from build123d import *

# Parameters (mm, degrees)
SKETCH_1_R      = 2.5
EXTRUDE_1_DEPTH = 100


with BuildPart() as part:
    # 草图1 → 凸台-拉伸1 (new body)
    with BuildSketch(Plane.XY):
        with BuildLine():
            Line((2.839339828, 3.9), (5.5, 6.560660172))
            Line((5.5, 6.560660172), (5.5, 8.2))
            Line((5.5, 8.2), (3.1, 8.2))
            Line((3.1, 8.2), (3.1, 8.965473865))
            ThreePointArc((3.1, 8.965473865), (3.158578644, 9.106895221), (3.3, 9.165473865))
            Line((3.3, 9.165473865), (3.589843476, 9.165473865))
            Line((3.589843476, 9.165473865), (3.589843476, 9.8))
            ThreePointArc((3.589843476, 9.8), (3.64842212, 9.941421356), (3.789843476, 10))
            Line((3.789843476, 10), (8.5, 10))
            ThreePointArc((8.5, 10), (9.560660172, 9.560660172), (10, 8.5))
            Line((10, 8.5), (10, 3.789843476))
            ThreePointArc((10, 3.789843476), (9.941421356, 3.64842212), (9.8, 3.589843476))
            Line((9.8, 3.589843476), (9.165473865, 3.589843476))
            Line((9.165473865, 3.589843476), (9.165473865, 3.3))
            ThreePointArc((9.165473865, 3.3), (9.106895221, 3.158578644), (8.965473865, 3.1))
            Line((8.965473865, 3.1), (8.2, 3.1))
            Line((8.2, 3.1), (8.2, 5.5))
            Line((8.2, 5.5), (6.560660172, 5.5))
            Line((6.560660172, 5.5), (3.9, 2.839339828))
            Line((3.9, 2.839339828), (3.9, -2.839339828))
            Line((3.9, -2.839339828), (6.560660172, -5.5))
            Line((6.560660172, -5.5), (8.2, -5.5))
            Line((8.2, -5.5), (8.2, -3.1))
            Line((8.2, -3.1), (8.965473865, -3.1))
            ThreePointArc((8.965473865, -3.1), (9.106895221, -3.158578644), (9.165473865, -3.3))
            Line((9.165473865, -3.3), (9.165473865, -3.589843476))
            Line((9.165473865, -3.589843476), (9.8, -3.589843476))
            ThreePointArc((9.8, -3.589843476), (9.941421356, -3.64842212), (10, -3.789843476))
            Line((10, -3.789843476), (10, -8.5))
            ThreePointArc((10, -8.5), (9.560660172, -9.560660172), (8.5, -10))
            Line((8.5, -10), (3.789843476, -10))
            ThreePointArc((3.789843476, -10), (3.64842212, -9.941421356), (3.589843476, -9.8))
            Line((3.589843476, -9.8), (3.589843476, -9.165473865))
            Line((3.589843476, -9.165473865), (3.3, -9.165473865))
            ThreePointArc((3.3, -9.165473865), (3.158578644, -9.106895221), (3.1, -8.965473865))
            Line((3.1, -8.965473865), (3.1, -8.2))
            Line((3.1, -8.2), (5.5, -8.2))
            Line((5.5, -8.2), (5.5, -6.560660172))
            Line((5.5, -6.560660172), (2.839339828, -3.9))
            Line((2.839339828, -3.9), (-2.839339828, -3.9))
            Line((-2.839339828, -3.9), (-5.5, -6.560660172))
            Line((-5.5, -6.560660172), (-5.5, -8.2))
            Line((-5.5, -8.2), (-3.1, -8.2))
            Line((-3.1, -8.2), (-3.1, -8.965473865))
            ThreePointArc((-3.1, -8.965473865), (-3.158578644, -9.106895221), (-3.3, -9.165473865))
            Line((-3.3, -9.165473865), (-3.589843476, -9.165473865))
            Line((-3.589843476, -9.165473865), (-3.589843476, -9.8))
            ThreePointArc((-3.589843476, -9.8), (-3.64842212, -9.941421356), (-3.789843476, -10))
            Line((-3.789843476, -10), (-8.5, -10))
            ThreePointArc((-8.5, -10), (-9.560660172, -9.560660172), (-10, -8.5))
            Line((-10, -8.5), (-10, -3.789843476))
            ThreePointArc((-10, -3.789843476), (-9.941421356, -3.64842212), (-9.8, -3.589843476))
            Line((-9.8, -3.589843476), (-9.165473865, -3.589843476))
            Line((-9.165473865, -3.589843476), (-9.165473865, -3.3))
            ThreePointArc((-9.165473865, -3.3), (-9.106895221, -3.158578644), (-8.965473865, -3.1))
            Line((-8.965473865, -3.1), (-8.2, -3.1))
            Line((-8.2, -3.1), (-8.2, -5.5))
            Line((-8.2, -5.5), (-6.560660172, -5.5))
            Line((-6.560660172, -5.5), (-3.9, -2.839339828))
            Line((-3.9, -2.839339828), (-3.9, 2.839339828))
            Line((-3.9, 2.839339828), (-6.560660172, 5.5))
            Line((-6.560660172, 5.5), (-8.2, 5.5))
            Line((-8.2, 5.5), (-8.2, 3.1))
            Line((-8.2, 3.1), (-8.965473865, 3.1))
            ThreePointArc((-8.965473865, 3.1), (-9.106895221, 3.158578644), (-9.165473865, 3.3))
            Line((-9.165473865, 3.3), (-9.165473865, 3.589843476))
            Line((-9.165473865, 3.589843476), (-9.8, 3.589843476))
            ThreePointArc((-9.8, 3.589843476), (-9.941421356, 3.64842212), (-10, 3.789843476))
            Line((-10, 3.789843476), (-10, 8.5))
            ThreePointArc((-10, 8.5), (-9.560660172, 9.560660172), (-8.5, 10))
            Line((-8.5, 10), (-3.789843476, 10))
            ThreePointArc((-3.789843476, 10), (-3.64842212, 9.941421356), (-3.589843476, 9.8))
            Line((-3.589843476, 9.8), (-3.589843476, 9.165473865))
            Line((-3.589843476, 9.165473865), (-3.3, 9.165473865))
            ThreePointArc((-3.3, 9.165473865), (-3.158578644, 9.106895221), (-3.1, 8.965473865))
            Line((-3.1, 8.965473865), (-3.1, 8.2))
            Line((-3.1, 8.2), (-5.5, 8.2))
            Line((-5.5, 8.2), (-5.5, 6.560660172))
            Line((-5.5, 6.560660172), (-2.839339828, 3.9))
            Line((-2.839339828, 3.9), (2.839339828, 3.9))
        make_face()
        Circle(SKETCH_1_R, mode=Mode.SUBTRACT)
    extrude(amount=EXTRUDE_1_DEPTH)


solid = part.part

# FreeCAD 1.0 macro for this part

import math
import FreeCAD as App
import Part
import Sketcher

V = App.Vector

doc = App.newDocument("Part")
body = doc.addObject("PartDesign::Body", "Body")

# Sketch on XY plane
sketch1 = body.newObject("Sketcher::SketchObject", "Sketch")
sketch1.AttachmentSupport = (doc.getObject("XY_Plane"), [""])
sketch1.MapMode = "FlatFace"
sketch1.addGeometry(Part.LineSegment(V(5.5, 6.56, 0), V(2.84, 3.9, 0)), False)
sketch1.addGeometry(Part.LineSegment(V(2.84, 3.9, 0), V(-2.84, 3.9, 0)), False)
sketch1.addGeometry(Part.LineSegment(V(-2.84, 3.9, 0), V(-5.5, 6.56, 0)), False)
sketch1.addGeometry(Part.LineSegment(V(-5.5, 6.56, 0), V(-5.5, 8.2, 0)), False)
sketch1.addGeometry(Part.LineSegment(V(-5.5, 8.2, 0), V(-3.1, 8.2, 0)), False)
sketch1.addGeometry(Part.LineSegment(V(-3.1, 8.2, 0), V(-3.1, 8.97, 0)), False)
sketch1.addGeometry(Part.ArcOfCircle(Part.Circle(V(-3.3, 8.97, 0), V(0, 0, 1), 0.2), math.radians(0), math.radians(90)), False)
sketch1.addGeometry(Part.LineSegment(V(-3.3, 9.17, 0), V(-3.59, 9.17, 0)), False)
sketch1.addGeometry(Part.LineSegment(V(-3.59, 9.17, 0), V(-3.59, 9.8, 0)), False)
sketch1.addGeometry(Part.ArcOfCircle(Part.Circle(V(-3.79, 9.8, 0), V(0, 0, 1), 0.2), math.radians(0), math.radians(90)), False)
sketch1.addGeometry(Part.LineSegment(V(-3.79, 10, 0), V(-8.5, 10, 0)), False)
sketch1.addGeometry(Part.ArcOfCircle(Part.Circle(V(-8.5, 8.5, 0), V(0, 0, 1), 1.5), math.radians(90), math.radians(180)), False)
sketch1.addGeometry(Part.LineSegment(V(-10, 8.5, 0), V(-10, 3.79, 0)), False)
sketch1.addGeometry(Part.ArcOfCircle(Part.Circle(V(-9.8, 3.79, 0), V(0, 0, 1), 0.2), math.radians(-180), math.radians(-90)), False)
sketch1.addGeometry(Part.LineSegment(V(-9.8, 3.59, 0), V(-9.17, 3.59, 0)), False)
sketch1.addGeometry(Part.LineSegment(V(-9.17, 3.59, 0), V(-9.17, 3.3, 0)), False)
sketch1.addGeometry(Part.ArcOfCircle(Part.Circle(V(-8.97, 3.3, 0), V(0, 0, 1), 0.2), math.radians(-180), math.radians(-90)), False)
sketch1.addGeometry(Part.LineSegment(V(-8.97, 3.1, 0), V(-8.2, 3.1, 0)), False)
sketch1.addGeometry(Part.LineSegment(V(-8.2, 3.1, 0), V(-8.2, 5.5, 0)), False)
sketch1.addGeometry(Part.LineSegment(V(-8.2, 5.5, 0), V(-6.56, 5.5, 0)), False)
sketch1.addGeometry(Part.LineSegment(V(-6.56, 5.5, 0), V(-3.9, 2.84, 0)), False)
sketch1.addGeometry(Part.LineSegment(V(-3.9, 2.84, 0), V(-3.9, -2.84, 0)), False)
sketch1.addGeometry(Part.LineSegment(V(-3.9, -2.84, 0), V(-6.56, -5.5, 0)), False)
sketch1.addGeometry(Part.LineSegment(V(-6.56, -5.5, 0), V(-8.2, -5.5, 0)), False)
sketch1.addGeometry(Part.LineSegment(V(-8.2, -5.5, 0), V(-8.2, -3.1, 0)), False)
sketch1.addGeometry(Part.LineSegment(V(-8.2, -3.1, 0), V(-8.97, -3.1, 0)), False)
sketch1.addGeometry(Part.ArcOfCircle(Part.Circle(V(-8.97, -3.3, 0), V(0, 0, 1), 0.2), math.radians(90), math.radians(180)), False)
sketch1.addGeometry(Part.LineSegment(V(-9.17, -3.3, 0), V(-9.17, -3.59, 0)), False)
sketch1.addGeometry(Part.LineSegment(V(-9.17, -3.59, 0), V(-9.8, -3.59, 0)), False)
sketch1.addGeometry(Part.ArcOfCircle(Part.Circle(V(-9.8, -3.79, 0), V(0, 0, 1), 0.2), math.radians(90), math.radians(180)), False)
sketch1.addGeometry(Part.LineSegment(V(-10, -3.79, 0), V(-10, -8.5, 0)), False)
sketch1.addGeometry(Part.ArcOfCircle(Part.Circle(V(-8.5, -8.5, 0), V(0, 0, 1), 1.5), math.radians(180), math.radians(270)), False)
sketch1.addGeometry(Part.LineSegment(V(-8.5, -10, 0), V(-3.79, -10, 0)), False)
sketch1.addGeometry(Part.ArcOfCircle(Part.Circle(V(-3.79, -9.8, 0), V(0, 0, 1), 0.2), math.radians(-90), math.radians(0)), False)
sketch1.addGeometry(Part.LineSegment(V(-3.59, -9.8, 0), V(-3.59, -9.17, 0)), False)
sketch1.addGeometry(Part.LineSegment(V(-3.59, -9.17, 0), V(-3.3, -9.17, 0)), False)
sketch1.addGeometry(Part.ArcOfCircle(Part.Circle(V(-3.3, -8.97, 0), V(0, 0, 1), 0.2), math.radians(-90), math.radians(0)), False)
sketch1.addGeometry(Part.LineSegment(V(-3.1, -8.97, 0), V(-3.1, -8.2, 0)), False)
sketch1.addGeometry(Part.LineSegment(V(-3.1, -8.2, 0), V(-5.5, -8.2, 0)), False)
sketch1.addGeometry(Part.LineSegment(V(-5.5, -8.2, 0), V(-5.5, -6.56, 0)), False)
sketch1.addGeometry(Part.LineSegment(V(-5.5, -6.56, 0), V(-2.84, -3.9, 0)), False)
sketch1.addGeometry(Part.LineSegment(V(-2.84, -3.9, 0), V(2.84, -3.9, 0)), False)
sketch1.addGeometry(Part.LineSegment(V(2.84, -3.9, 0), V(5.5, -6.56, 0)), False)
sketch1.addGeometry(Part.LineSegment(V(5.5, -6.56, 0), V(5.5, -8.2, 0)), False)
sketch1.addGeometry(Part.LineSegment(V(5.5, -8.2, 0), V(3.1, -8.2, 0)), False)
sketch1.addGeometry(Part.LineSegment(V(3.1, -8.2, 0), V(3.1, -8.97, 0)), False)
sketch1.addGeometry(Part.ArcOfCircle(Part.Circle(V(3.3, -8.97, 0), V(0, 0, 1), 0.2), math.radians(-180), math.radians(-90)), False)
sketch1.addGeometry(Part.LineSegment(V(3.3, -9.17, 0), V(3.59, -9.17, 0)), False)
sketch1.addGeometry(Part.LineSegment(V(3.59, -9.17, 0), V(3.59, -9.8, 0)), False)
sketch1.addGeometry(Part.ArcOfCircle(Part.Circle(V(3.79, -9.8, 0), V(0, 0, 1), 0.2), math.radians(-180), math.radians(-90)), False)
sketch1.addGeometry(Part.LineSegment(V(3.79, -10, 0), V(8.5, -10, 0)), False)
sketch1.addGeometry(Part.ArcOfCircle(Part.Circle(V(8.5, -8.5, 0), V(0, 0, 1), 1.5), math.radians(-90), math.radians(0)), False)
sketch1.addGeometry(Part.LineSegment(V(10, -8.5, 0), V(10, -3.79, 0)), False)
sketch1.addGeometry(Part.ArcOfCircle(Part.Circle(V(9.8, -3.79, 0), V(0, 0, 1), 0.2), math.radians(0), math.radians(90)), False)
sketch1.addGeometry(Part.LineSegment(V(9.8, -3.59, 0), V(9.17, -3.59, 0)), False)
sketch1.addGeometry(Part.LineSegment(V(9.17, -3.59, 0), V(9.17, -3.3, 0)), False)
sketch1.addGeometry(Part.ArcOfCircle(Part.Circle(V(8.97, -3.3, 0), V(0, 0, 1), 0.2), math.radians(0), math.radians(90)), False)
sketch1.addGeometry(Part.LineSegment(V(8.97, -3.1, 0), V(8.2, -3.1, 0)), False)
sketch1.addGeometry(Part.LineSegment(V(8.2, -3.1, 0), V(8.2, -5.5, 0)), False)
sketch1.addGeometry(Part.LineSegment(V(8.2, -5.5, 0), V(6.56, -5.5, 0)), False)
sketch1.addGeometry(Part.LineSegment(V(6.56, -5.5, 0), V(3.9, -2.84, 0)), False)
sketch1.addGeometry(Part.LineSegment(V(3.9, -2.84, 0), V(3.9, 2.84, 0)), False)
sketch1.addGeometry(Part.LineSegment(V(3.9, 2.84, 0), V(6.56, 5.5, 0)), False)
sketch1.addGeometry(Part.LineSegment(V(6.56, 5.5, 0), V(8.2, 5.5, 0)), False)
sketch1.addGeometry(Part.LineSegment(V(8.2, 5.5, 0), V(8.2, 3.1, 0)), False)
sketch1.addGeometry(Part.LineSegment(V(8.2, 3.1, 0), V(8.97, 3.1, 0)), False)
sketch1.addGeometry(Part.ArcOfCircle(Part.Circle(V(8.97, 3.3, 0), V(0, 0, 1), 0.2), math.radians(-90), math.radians(0)), False)
sketch1.addGeometry(Part.LineSegment(V(9.17, 3.3, 0), V(9.17, 3.59, 0)), False)
sketch1.addGeometry(Part.LineSegment(V(9.17, 3.59, 0), V(9.8, 3.59, 0)), False)
sketch1.addGeometry(Part.ArcOfCircle(Part.Circle(V(9.8, 3.79, 0), V(0, 0, 1), 0.2), math.radians(-90), math.radians(0)), False)
sketch1.addGeometry(Part.LineSegment(V(10, 3.79, 0), V(10, 8.5, 0)), False)
sketch1.addGeometry(Part.ArcOfCircle(Part.Circle(V(8.5, 8.5, 0), V(0, 0, 1), 1.5), math.radians(0), math.radians(90)), False)
sketch1.addGeometry(Part.LineSegment(V(8.5, 10, 0), V(3.79, 10, 0)), False)
sketch1.addGeometry(Part.ArcOfCircle(Part.Circle(V(3.79, 9.8, 0), V(0, 0, 1), 0.2), math.radians(90), math.radians(180)), False)
sketch1.addGeometry(Part.LineSegment(V(3.59, 9.8, 0), V(3.59, 9.17, 0)), False)
sketch1.addGeometry(Part.LineSegment(V(3.59, 9.17, 0), V(3.3, 9.17, 0)), False)
sketch1.addGeometry(Part.ArcOfCircle(Part.Circle(V(3.3, 8.97, 0), V(0, 0, 1), 0.2), math.radians(90), math.radians(180)), False)
sketch1.addGeometry(Part.LineSegment(V(3.1, 8.97, 0), V(3.1, 8.2, 0)), False)
sketch1.addGeometry(Part.LineSegment(V(3.1, 8.2, 0), V(5.5, 8.2, 0)), False)
sketch1.addGeometry(Part.LineSegment(V(5.5, 8.2, 0), V(5.5, 6.56, 0)), False)
sketch1.addGeometry(Part.Circle(V(0, 0, 0), V(0, 0, 1), 2.5), False)
sketch1.addConstraint(Sketcher.Constraint("Coincident", 0, 2, 1, 1))
sketch1.addConstraint(Sketcher.Constraint("Coincident", 1, 2, 2, 1))
sketch1.addConstraint(Sketcher.Constraint("Coincident", 2, 2, 3, 1))
sketch1.addConstraint(Sketcher.Constraint("Coincident", 3, 2, 4, 1))
sketch1.addConstraint(Sketcher.Constraint("Coincident", 4, 2, 5, 1))
sketch1.addConstraint(Sketcher.Constraint("Tangent", 5, 2, 6, 1))
sketch1.addConstraint(Sketcher.Constraint("Tangent", 6, 2, 7, 1))
sketch1.addConstraint(Sketcher.Constraint("Coincident", 7, 2, 8, 1))
sketch1.addConstraint(Sketcher.Constraint("Tangent", 8, 2, 9, 1))
sketch1.addConstraint(Sketcher.Constraint("Tangent", 9, 2, 10, 1))
sketch1.addConstraint(Sketcher.Constraint("Tangent", 10, 2, 11, 1))
sketch1.addConstraint(Sketcher.Constraint("Tangent", 11, 2, 12, 1))
sketch1.addConstraint(Sketcher.Constraint("Tangent", 12, 2, 13, 1))
sketch1.addConstraint(Sketcher.Constraint("Tangent", 13, 2, 14, 1))
sketch1.addConstraint(Sketcher.Constraint("Coincident", 14, 2, 15, 1))
sketch1.addConstraint(Sketcher.Constraint("Tangent", 15, 2, 16, 1))
sketch1.addConstraint(Sketcher.Constraint("Tangent", 16, 2, 17, 1))
sketch1.addConstraint(Sketcher.Constraint("Coincident", 17, 2, 18, 1))
sketch1.addConstraint(Sketcher.Constraint("Coincident", 18, 2, 19, 1))
sketch1.addConstraint(Sketcher.Constraint("Coincident", 19, 2, 20, 1))
sketch1.addConstraint(Sketcher.Constraint("Coincident", 20, 2, 21, 1))
sketch1.addConstraint(Sketcher.Constraint("Coincident", 21, 2, 22, 1))
sketch1.addConstraint(Sketcher.Constraint("Coincident", 22, 2, 23, 1))
sketch1.addConstraint(Sketcher.Constraint("Coincident", 23, 2, 24, 1))
sketch1.addConstraint(Sketcher.Constraint("Coincident", 24, 2, 25, 1))
sketch1.addConstraint(Sketcher.Constraint("Tangent", 25, 2, 26, 1))
sketch1.addConstraint(Sketcher.Constraint("Tangent", 26, 2, 27, 1))
sketch1.addConstraint(Sketcher.Constraint("Coincident", 27, 2, 28, 1))
sketch1.addConstraint(Sketcher.Constraint("Tangent", 28, 2, 29, 1))
sketch1.addConstraint(Sketcher.Constraint("Tangent", 29, 2, 30, 1))
sketch1.addConstraint(Sketcher.Constraint("Tangent", 30, 2, 31, 1))
sketch1.addConstraint(Sketcher.Constraint("Tangent", 31, 2, 32, 1))
sketch1.addConstraint(Sketcher.Constraint("Tangent", 32, 2, 33, 1))
sketch1.addConstraint(Sketcher.Constraint("Tangent", 33, 2, 34, 1))
sketch1.addConstraint(Sketcher.Constraint("Coincident", 34, 2, 35, 1))
sketch1.addConstraint(Sketcher.Constraint("Tangent", 35, 2, 36, 1))
sketch1.addConstraint(Sketcher.Constraint("Tangent", 36, 2, 37, 1))
sketch1.addConstraint(Sketcher.Constraint("Coincident", 37, 2, 38, 1))
sketch1.addConstraint(Sketcher.Constraint("Coincident", 38, 2, 39, 1))
sketch1.addConstraint(Sketcher.Constraint("Coincident", 39, 2, 40, 1))
sketch1.addConstraint(Sketcher.Constraint("Coincident", 40, 2, 41, 1))
sketch1.addConstraint(Sketcher.Constraint("Coincident", 41, 2, 42, 1))
sketch1.addConstraint(Sketcher.Constraint("Coincident", 42, 2, 43, 1))
sketch1.addConstraint(Sketcher.Constraint("Coincident", 43, 2, 44, 1))
sketch1.addConstraint(Sketcher.Constraint("Coincident", 44, 2, 45, 1))
sketch1.addConstraint(Sketcher.Constraint("Tangent", 45, 2, 46, 1))
sketch1.addConstraint(Sketcher.Constraint("Tangent", 46, 2, 47, 1))
sketch1.addConstraint(Sketcher.Constraint("Coincident", 47, 2, 48, 1))
sketch1.addConstraint(Sketcher.Constraint("Tangent", 48, 2, 49, 1))
sketch1.addConstraint(Sketcher.Constraint("Tangent", 49, 2, 50, 1))
sketch1.addConstraint(Sketcher.Constraint("Tangent", 50, 2, 51, 1))
sketch1.addConstraint(Sketcher.Constraint("Tangent", 51, 2, 52, 1))
sketch1.addConstraint(Sketcher.Constraint("Tangent", 52, 2, 53, 1))
sketch1.addConstraint(Sketcher.Constraint("Tangent", 53, 2, 54, 1))
sketch1.addConstraint(Sketcher.Constraint("Coincident", 54, 2, 55, 1))
sketch1.addConstraint(Sketcher.Constraint("Tangent", 55, 2, 56, 1))
sketch1.addConstraint(Sketcher.Constraint("Tangent", 56, 2, 57, 1))
sketch1.addConstraint(Sketcher.Constraint("Coincident", 57, 2, 58, 1))
sketch1.addConstraint(Sketcher.Constraint("Coincident", 58, 2, 59, 1))
sketch1.addConstraint(Sketcher.Constraint("Coincident", 59, 2, 60, 1))
sketch1.addConstraint(Sketcher.Constraint("Coincident", 60, 2, 61, 1))
sketch1.addConstraint(Sketcher.Constraint("Coincident", 61, 2, 62, 1))
sketch1.addConstraint(Sketcher.Constraint("Coincident", 62, 2, 63, 1))
sketch1.addConstraint(Sketcher.Constraint("Coincident", 63, 2, 64, 1))
sketch1.addConstraint(Sketcher.Constraint("Coincident", 64, 2, 65, 1))
sketch1.addConstraint(Sketcher.Constraint("Tangent", 65, 2, 66, 1))
sketch1.addConstraint(Sketcher.Constraint("Tangent", 66, 2, 67, 1))
sketch1.addConstraint(Sketcher.Constraint("Coincident", 67, 2, 68, 1))
sketch1.addConstraint(Sketcher.Constraint("Tangent", 68, 2, 69, 1))
sketch1.addConstraint(Sketcher.Constraint("Tangent", 69, 2, 70, 1))
sketch1.addConstraint(Sketcher.Constraint("Tangent", 70, 2, 71, 1))
sketch1.addConstraint(Sketcher.Constraint("Tangent", 71, 2, 72, 1))
sketch1.addConstraint(Sketcher.Constraint("Tangent", 72, 2, 73, 1))
sketch1.addConstraint(Sketcher.Constraint("Tangent", 73, 2, 74, 1))
sketch1.addConstraint(Sketcher.Constraint("Coincident", 74, 2, 75, 1))
sketch1.addConstraint(Sketcher.Constraint("Tangent", 75, 2, 76, 1))
sketch1.addConstraint(Sketcher.Constraint("Tangent", 76, 2, 77, 1))
sketch1.addConstraint(Sketcher.Constraint("Coincident", 77, 2, 78, 1))
sketch1.addConstraint(Sketcher.Constraint("Coincident", 78, 2, 79, 1))
sketch1.addConstraint(Sketcher.Constraint("Coincident", 79, 2, 0, 1))
sketch1.addConstraint(Sketcher.Constraint("Horizontal", 1))
sketch1.addConstraint(Sketcher.Constraint("Vertical", 3))
sketch1.addConstraint(Sketcher.Constraint("Horizontal", 4))
sketch1.addConstraint(Sketcher.Constraint("Vertical", 5))
sketch1.addConstraint(Sketcher.Constraint("Horizontal", 7))
sketch1.addConstraint(Sketcher.Constraint("Vertical", 8))
sketch1.addConstraint(Sketcher.Constraint("Horizontal", 10))
sketch1.addConstraint(Sketcher.Constraint("Vertical", 12))
sketch1.addConstraint(Sketcher.Constraint("Horizontal", 14))
sketch1.addConstraint(Sketcher.Constraint("Vertical", 15))
sketch1.addConstraint(Sketcher.Constraint("Horizontal", 17))
sketch1.addConstraint(Sketcher.Constraint("Vertical", 18))
sketch1.addConstraint(Sketcher.Constraint("Horizontal", 19))
sketch1.addConstraint(Sketcher.Constraint("Vertical", 21))
sketch1.addConstraint(Sketcher.Constraint("Horizontal", 23))
sketch1.addConstraint(Sketcher.Constraint("Vertical", 24))
sketch1.addConstraint(Sketcher.Constraint("Horizontal", 25))
sketch1.addConstraint(Sketcher.Constraint("Vertical", 27))
sketch1.addConstraint(Sketcher.Constraint("Horizontal", 28))
sketch1.addConstraint(Sketcher.Constraint("Vertical", 30))
sketch1.addConstraint(Sketcher.Constraint("Horizontal", 32))
sketch1.addConstraint(Sketcher.Constraint("Vertical", 34))
sketch1.addConstraint(Sketcher.Constraint("Horizontal", 35))
sketch1.addConstraint(Sketcher.Constraint("Vertical", 37))
sketch1.addConstraint(Sketcher.Constraint("Horizontal", 38))
sketch1.addConstraint(Sketcher.Constraint("Vertical", 39))
sketch1.addConstraint(Sketcher.Constraint("Horizontal", 41))
sketch1.addConstraint(Sketcher.Constraint("Vertical", 43))
sketch1.addConstraint(Sketcher.Constraint("Horizontal", 44))
sketch1.addConstraint(Sketcher.Constraint("Vertical", 45))
sketch1.addConstraint(Sketcher.Constraint("Horizontal", 47))
sketch1.addConstraint(Sketcher.Constraint("Vertical", 48))
sketch1.addConstraint(Sketcher.Constraint("Horizontal", 50))
sketch1.addConstraint(Sketcher.Constraint("Vertical", 52))
sketch1.addConstraint(Sketcher.Constraint("Horizontal", 54))
sketch1.addConstraint(Sketcher.Constraint("Vertical", 55))
sketch1.addConstraint(Sketcher.Constraint("Horizontal", 57))
sketch1.addConstraint(Sketcher.Constraint("Vertical", 58))
sketch1.addConstraint(Sketcher.Constraint("Horizontal", 59))
sketch1.addConstraint(Sketcher.Constraint("Vertical", 61))
sketch1.addConstraint(Sketcher.Constraint("Horizontal", 63))
sketch1.addConstraint(Sketcher.Constraint("Vertical", 64))
sketch1.addConstraint(Sketcher.Constraint("Horizontal", 65))
sketch1.addConstraint(Sketcher.Constraint("Vertical", 67))
sketch1.addConstraint(Sketcher.Constraint("Horizontal", 68))
sketch1.addConstraint(Sketcher.Constraint("Vertical", 70))
sketch1.addConstraint(Sketcher.Constraint("Horizontal", 72))
sketch1.addConstraint(Sketcher.Constraint("Vertical", 74))
sketch1.addConstraint(Sketcher.Constraint("Horizontal", 75))
sketch1.addConstraint(Sketcher.Constraint("Vertical", 77))
sketch1.addConstraint(Sketcher.Constraint("Horizontal", 78))
sketch1.addConstraint(Sketcher.Constraint("Vertical", 79))
sketch1.addConstraint(Sketcher.Constraint("Coincident", 80, 3, -1, 1))
sketch1.addConstraint(Sketcher.Constraint("Equal", 6, 9))
sketch1.addConstraint(Sketcher.Constraint("Equal", 9, 13))
sketch1.addConstraint(Sketcher.Constraint("Equal", 13, 16))
sketch1.addConstraint(Sketcher.Constraint("Equal", 16, 26))
sketch1.addConstraint(Sketcher.Constraint("Equal", 26, 29))
sketch1.addConstraint(Sketcher.Constraint("Equal", 11, 31))
sketch1.addConstraint(Sketcher.Constraint("Equal", 29, 33))
sketch1.addConstraint(Sketcher.Constraint("Equal", 33, 36))
sketch1.addConstraint(Sketcher.Constraint("Equal", 36, 46))
sketch1.addConstraint(Sketcher.Constraint("Equal", 46, 49))
sketch1.addConstraint(Sketcher.Constraint("Equal", 31, 51))
sketch1.addConstraint(Sketcher.Constraint("Equal", 49, 53))
sketch1.addConstraint(Sketcher.Constraint("Equal", 53, 56))
sketch1.addConstraint(Sketcher.Constraint("Equal", 56, 66))
sketch1.addConstraint(Sketcher.Constraint("Equal", 66, 69))
sketch1.addConstraint(Sketcher.Constraint("Equal", 51, 71))
sketch1.addConstraint(Sketcher.Constraint("Equal", 69, 73))
sketch1.addConstraint(Sketcher.Constraint("Equal", 73, 76))
sketch1.addConstraint(Sketcher.Constraint("Symmetric", 6, 3, 46, 3, -1, 1))
sketch1.addConstraint(Sketcher.Constraint("Symmetric", 9, 3, 49, 3, -1, 1))
sketch1.addConstraint(Sketcher.Constraint("Symmetric", 13, 3, 53, 3, -1, 1))
sketch1.addConstraint(Sketcher.Constraint("Symmetric", 16, 3, 56, 3, -1, 1))
sketch1.addConstraint(Sketcher.Constraint("Symmetric", 26, 3, 66, 3, -1, 1))
sketch1.addConstraint(Sketcher.Constraint("Symmetric", 29, 3, 69, 3, -1, 1))
sketch1.addConstraint(Sketcher.Constraint("Symmetric", 33, 3, 73, 3, -1, 1))
sketch1.addConstraint(Sketcher.Constraint("Symmetric", 36, 3, 76, 3, -1, 1))
sketch1.addConstraint(Sketcher.Constraint("Symmetric", 0, 2, 40, 2, -1, 1))
sketch1.addConstraint(Sketcher.Constraint("Symmetric", 2, 2, 42, 2, -1, 1))
sketch1.addConstraint(Sketcher.Constraint("Symmetric", 18, 2, 58, 2, -1, 1))
sketch1.addConstraint(Sketcher.Constraint("Symmetric", 20, 2, 60, 2, -1, 1))
sketch1.addConstraint(Sketcher.Constraint("Symmetric", 22, 2, 62, 2, -1, 1))
sketch1.addConstraint(Sketcher.Constraint("Symmetric", 38, 2, 78, 2, -1, 1))
sketch1.addConstraint(Sketcher.Constraint("Symmetric", 36, 3, 46, 3, -2))
sketch1.addConstraint(Sketcher.Constraint("Symmetric", 33, 3, 49, 3, -2))
sketch1.addConstraint(Sketcher.Constraint("Symmetric", 29, 3, 53, 3, -2))
sketch1.addConstraint(Sketcher.Constraint("Symmetric", 26, 3, 56, 3, -2))
sketch1.addConstraint(Sketcher.Constraint("Symmetric", 39, 2, 42, 2, -2))
sketch1.addConstraint(Sketcher.Constraint("Symmetric", 23, 2, 58, 2, -2))
sketch1.addConstraint(Sketcher.Constraint("Perpendicular", 0, 2))
sketch1.addConstraint(Sketcher.Constraint("Parallel", 2, 20))
sketch1.addConstraint(Sketcher.Constraint("Perpendicular", 20, 22))
sketch1.addConstraint(Sketcher.Constraint("Parallel", 22, 40))
sketch1.addConstraint(Sketcher.Constraint("Perpendicular", 40, 42))
sketch1.addConstraint(Sketcher.Constraint("Parallel", 42, 60))
sketch1.addConstraint(Sketcher.Constraint("Perpendicular", 60, 62))
sketch1.addConstraint(Sketcher.Constraint("Horizontal", 38, 2, 43, 2))
sketch1.addConstraint(Sketcher.Constraint("Horizontal", 21, 2, 60, 2))
sketch1.addConstraint(Sketcher.Constraint("Horizontal", 4, 2, 77, 2))
sketch1.addConstraint(Sketcher.Constraint("Vertical", 19, 2, 22, 2))
sketch1.addConstraint(Sketcher.Constraint("Vertical", 58, 2, 63, 2))
sketch1.addConstraint(Sketcher.Constraint("Equal", 63, 3))
sketch1.addConstraint(Sketcher.Constraint("Equal", 65, 5))
sketch1.addConstraint(Sketcher.Constraint("Equal", 68, 8))
sketch1.addConstraint(Sketcher.Constraint("Equal", 72, 12))
sketch1.addConstraint(Sketcher.Constraint("Equal", 75, 15))
sketch1.addConstraint(Sketcher.Constraint("Equal", 78, 18))
sketch1.addConstraint(Sketcher.Constraint("Equal", 41, 21))
sketch1.addConstraint(Sketcher.Constraint("Equal", 2, 20))
sketch1.addConstraint(Sketcher.Constraint("Diameter", 80, 5.0))
sketch1.addConstraint(Sketcher.Constraint("Radius", 6, 0.2))
sketch1.addConstraint(Sketcher.Constraint("Radius", 11, 1.5))
sketch1.addConstraint(Sketcher.Constraint("DistanceX", 4, 1, 4, 2, 2.4))
sketch1.addConstraint(Sketcher.Constraint("DistanceY", -1, 1, 9, 2, 10.0))
sketch1.addConstraint(Sketcher.Constraint("DistanceX", 6, 3, -1, 1, 3.3))
sketch1.addConstraint(Sketcher.Constraint("DistanceY", -1, 1, 0, 2, 3.9))
sketch1.addConstraint(Sketcher.Constraint("DistanceY", -1, 1, 3, 2, 8.2))
sketch1.addConstraint(Sketcher.Constraint("DistanceX", 1, 2, 1, 1, 5.67868))
sketch1.addConstraint(Sketcher.Constraint("DistanceX", 7, 2, 7, 1, 0.289843))
sketch1.addConstraint(Sketcher.Constraint("DistanceX", 14, 1, 14, 2, 0.634526))
pad1 = body.newObject("PartDesign::Pad", "Pad")
pad1.Profile = sketch1
pad1.Length = 100

doc.recompute()
